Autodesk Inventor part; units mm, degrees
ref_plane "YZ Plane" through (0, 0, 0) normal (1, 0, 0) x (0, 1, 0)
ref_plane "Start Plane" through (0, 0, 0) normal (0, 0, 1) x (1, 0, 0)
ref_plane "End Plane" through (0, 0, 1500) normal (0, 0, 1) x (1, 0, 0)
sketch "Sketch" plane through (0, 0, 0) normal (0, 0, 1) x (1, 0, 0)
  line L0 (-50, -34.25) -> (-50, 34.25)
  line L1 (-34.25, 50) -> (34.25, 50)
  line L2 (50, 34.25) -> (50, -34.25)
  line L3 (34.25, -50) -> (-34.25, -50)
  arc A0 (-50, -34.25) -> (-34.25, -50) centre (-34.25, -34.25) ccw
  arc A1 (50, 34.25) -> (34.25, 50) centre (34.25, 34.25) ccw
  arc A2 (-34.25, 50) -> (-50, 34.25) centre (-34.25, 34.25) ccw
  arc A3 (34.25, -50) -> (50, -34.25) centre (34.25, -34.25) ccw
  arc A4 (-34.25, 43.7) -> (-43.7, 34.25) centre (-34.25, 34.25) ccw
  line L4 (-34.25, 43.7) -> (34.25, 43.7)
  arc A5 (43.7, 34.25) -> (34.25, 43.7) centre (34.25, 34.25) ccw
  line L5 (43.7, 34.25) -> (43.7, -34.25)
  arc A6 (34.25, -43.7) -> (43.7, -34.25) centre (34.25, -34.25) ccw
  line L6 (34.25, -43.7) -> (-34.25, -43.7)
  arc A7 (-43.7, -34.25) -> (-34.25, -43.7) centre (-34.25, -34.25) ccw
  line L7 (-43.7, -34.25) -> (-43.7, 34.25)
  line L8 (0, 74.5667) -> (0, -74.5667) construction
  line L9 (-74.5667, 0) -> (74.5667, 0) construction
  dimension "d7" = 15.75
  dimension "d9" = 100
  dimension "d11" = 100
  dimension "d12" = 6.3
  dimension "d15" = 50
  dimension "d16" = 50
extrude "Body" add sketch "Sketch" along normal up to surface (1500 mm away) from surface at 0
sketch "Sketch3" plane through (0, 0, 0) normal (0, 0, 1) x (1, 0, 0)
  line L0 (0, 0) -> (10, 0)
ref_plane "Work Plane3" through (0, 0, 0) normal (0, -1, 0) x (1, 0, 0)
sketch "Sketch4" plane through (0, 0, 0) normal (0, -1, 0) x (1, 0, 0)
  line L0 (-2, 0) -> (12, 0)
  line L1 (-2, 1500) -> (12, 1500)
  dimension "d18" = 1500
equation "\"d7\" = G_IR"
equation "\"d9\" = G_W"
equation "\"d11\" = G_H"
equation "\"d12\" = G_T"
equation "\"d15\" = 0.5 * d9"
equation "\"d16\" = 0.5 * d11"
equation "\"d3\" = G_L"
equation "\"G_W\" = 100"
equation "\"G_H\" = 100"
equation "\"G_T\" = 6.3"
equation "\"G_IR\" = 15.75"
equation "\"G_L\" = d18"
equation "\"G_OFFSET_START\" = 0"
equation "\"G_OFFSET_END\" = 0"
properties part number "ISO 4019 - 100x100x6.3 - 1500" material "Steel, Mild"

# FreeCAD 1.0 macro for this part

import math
import FreeCAD as App
import Part
import Sketcher

doc = App.newDocument("Part")
body = doc.addObject("PartDesign::Body", "Body")

# Sketch on XY plane
sketch1 = body.newObject("Sketcher::SketchObject", "Sketch")
sketch1.AttachmentSupport = (doc.getObject("XY_Plane"), [""])
sketch1.MapMode = "FlatFace"
sketch1.addGeometry([
    Part.LineSegment(App.Vector(-50, 34, 0), App.Vector(-50, -34, 0)),  # 0
    Part.ArcOfCircle(Part.Circle(App.Vector(-34, -34, 0), App.Vector(0, 0, 1), 16), math.radians(180), math.radians(270)),  # 1
    Part.LineSegment(App.Vector(-34, -50, 0), App.Vector(34, -50, 0)),  # 2
    Part.ArcOfCircle(Part.Circle(App.Vector(34, -34, 0), App.Vector(0, 0, 1), 16), math.radians(-90), math.radians(0)),  # 3
    Part.LineSegment(App.Vector(50, -34, 0), App.Vector(50, 34, 0)),  # 4
    Part.ArcOfCircle(Part.Circle(App.Vector(34, 34, 0), App.Vector(0, 0, 1), 16), math.radians(0), math.radians(90)),  # 5
    Part.LineSegment(App.Vector(34, 50, 0), App.Vector(-34, 50, 0)),  # 6
    Part.ArcOfCircle(Part.Circle(App.Vector(-34, 34, 0), App.Vector(0, 0, 1), 16), math.radians(90), math.radians(180)),  # 7
    Part.ArcOfCircle(Part.Circle(App.Vector(-34, 34, 0), App.Vector(0, 0, 1), 9), math.radians(90), math.radians(180)),  # 8
    Part.LineSegment(App.Vector(-34, 44, 0), App.Vector(34, 44, 0)),  # 9
    Part.ArcOfCircle(Part.Circle(App.Vector(34, 34, 0), App.Vector(0, 0, 1), 9), math.radians(0), math.radians(90)),  # 10
    Part.LineSegment(App.Vector(44, 34, 0), App.Vector(44, -34, 0)),  # 11
    Part.ArcOfCircle(Part.Circle(App.Vector(34, -34, 0), App.Vector(0, 0, 1), 9), math.radians(-90), math.radians(0)),  # 12
    Part.LineSegment(App.Vector(34, -44, 0), App.Vector(-34, -44, 0)),  # 13
    Part.ArcOfCircle(Part.Circle(App.Vector(-34, -34, 0), App.Vector(0, 0, 1), 9), math.radians(180), math.radians(270)),  # 14
    Part.LineSegment(App.Vector(-44, -34, 0), App.Vector(-44, 34, 0)),  # 15
], False)
sketch1.addConstraint([
    Sketcher.Constraint("Tangent", 0, 2, 1, 1),
    Sketcher.Constraint("Tangent", 1, 2, 2, 1),
    Sketcher.Constraint("Tangent", 2, 2, 3, 1),
    Sketcher.Constraint("Tangent", 3, 2, 4, 1),
    Sketcher.Constraint("Tangent", 4, 2, 5, 1),
    Sketcher.Constraint("Tangent", 5, 2, 6, 1),
    Sketcher.Constraint("Tangent", 6, 2, 7, 1),
    Sketcher.Constraint("Tangent", 7, 2, 0, 1),
    Sketcher.Constraint("Tangent", 8, 1, 9, 1),
    Sketcher.Constraint("Tangent", 9, 2, 10, 2),
    Sketcher.Constraint("Tangent", 10, 1, 11, 1),
    Sketcher.Constraint("Tangent", 11, 2, 12, 2),
    Sketcher.Constraint("Tangent", 12, 1, 13, 1),
    Sketcher.Constraint("Tangent", 13, 2, 14, 2),
    Sketcher.Constraint("Tangent", 14, 1, 15, 1),
    Sketcher.Constraint("Tangent", 15, 2, 8, 2),
    Sketcher.Constraint("Vertical", 0),
    Sketcher.Constraint("Horizontal", 2),
    Sketcher.Constraint("Vertical", 4),
    Sketcher.Constraint("Horizontal", 6),
    Sketcher.Constraint("Horizontal", 9),
    Sketcher.Constraint("Vertical", 11),
    Sketcher.Constraint("Horizontal", 13),
    Sketcher.Constraint("Vertical", 15),
    Sketcher.Constraint("Coincident", 8, 3, 7, 3),
    Sketcher.Constraint("Coincident", 10, 3, 5, 3),
    Sketcher.Constraint("Coincident", 12, 3, 3, 3),
    Sketcher.Constraint("Equal", 1, 3),
    Sketcher.Constraint("Equal", 3, 5),
    Sketcher.Constraint("Equal", 5, 7),
    Sketcher.Constraint("Equal", 12, 14),
    Sketcher.Constraint("Symmetric", 1, 3, 5, 3, -1, 1),
    Sketcher.Constraint("Equal", 13, 0),
    Sketcher.Constraint("Radius", 1, 15.75),
    Sketcher.Constraint("DistanceX", 0, 2, -1, 1, 50.0),
    Sketcher.Constraint("DistanceY", 8, 1, 6, 2, 6.3),
])
pad1 = body.newObject("PartDesign::Pad", "Pad")
pad1.Profile = sketch1
pad1.Length = 1500

doc.recompute()
